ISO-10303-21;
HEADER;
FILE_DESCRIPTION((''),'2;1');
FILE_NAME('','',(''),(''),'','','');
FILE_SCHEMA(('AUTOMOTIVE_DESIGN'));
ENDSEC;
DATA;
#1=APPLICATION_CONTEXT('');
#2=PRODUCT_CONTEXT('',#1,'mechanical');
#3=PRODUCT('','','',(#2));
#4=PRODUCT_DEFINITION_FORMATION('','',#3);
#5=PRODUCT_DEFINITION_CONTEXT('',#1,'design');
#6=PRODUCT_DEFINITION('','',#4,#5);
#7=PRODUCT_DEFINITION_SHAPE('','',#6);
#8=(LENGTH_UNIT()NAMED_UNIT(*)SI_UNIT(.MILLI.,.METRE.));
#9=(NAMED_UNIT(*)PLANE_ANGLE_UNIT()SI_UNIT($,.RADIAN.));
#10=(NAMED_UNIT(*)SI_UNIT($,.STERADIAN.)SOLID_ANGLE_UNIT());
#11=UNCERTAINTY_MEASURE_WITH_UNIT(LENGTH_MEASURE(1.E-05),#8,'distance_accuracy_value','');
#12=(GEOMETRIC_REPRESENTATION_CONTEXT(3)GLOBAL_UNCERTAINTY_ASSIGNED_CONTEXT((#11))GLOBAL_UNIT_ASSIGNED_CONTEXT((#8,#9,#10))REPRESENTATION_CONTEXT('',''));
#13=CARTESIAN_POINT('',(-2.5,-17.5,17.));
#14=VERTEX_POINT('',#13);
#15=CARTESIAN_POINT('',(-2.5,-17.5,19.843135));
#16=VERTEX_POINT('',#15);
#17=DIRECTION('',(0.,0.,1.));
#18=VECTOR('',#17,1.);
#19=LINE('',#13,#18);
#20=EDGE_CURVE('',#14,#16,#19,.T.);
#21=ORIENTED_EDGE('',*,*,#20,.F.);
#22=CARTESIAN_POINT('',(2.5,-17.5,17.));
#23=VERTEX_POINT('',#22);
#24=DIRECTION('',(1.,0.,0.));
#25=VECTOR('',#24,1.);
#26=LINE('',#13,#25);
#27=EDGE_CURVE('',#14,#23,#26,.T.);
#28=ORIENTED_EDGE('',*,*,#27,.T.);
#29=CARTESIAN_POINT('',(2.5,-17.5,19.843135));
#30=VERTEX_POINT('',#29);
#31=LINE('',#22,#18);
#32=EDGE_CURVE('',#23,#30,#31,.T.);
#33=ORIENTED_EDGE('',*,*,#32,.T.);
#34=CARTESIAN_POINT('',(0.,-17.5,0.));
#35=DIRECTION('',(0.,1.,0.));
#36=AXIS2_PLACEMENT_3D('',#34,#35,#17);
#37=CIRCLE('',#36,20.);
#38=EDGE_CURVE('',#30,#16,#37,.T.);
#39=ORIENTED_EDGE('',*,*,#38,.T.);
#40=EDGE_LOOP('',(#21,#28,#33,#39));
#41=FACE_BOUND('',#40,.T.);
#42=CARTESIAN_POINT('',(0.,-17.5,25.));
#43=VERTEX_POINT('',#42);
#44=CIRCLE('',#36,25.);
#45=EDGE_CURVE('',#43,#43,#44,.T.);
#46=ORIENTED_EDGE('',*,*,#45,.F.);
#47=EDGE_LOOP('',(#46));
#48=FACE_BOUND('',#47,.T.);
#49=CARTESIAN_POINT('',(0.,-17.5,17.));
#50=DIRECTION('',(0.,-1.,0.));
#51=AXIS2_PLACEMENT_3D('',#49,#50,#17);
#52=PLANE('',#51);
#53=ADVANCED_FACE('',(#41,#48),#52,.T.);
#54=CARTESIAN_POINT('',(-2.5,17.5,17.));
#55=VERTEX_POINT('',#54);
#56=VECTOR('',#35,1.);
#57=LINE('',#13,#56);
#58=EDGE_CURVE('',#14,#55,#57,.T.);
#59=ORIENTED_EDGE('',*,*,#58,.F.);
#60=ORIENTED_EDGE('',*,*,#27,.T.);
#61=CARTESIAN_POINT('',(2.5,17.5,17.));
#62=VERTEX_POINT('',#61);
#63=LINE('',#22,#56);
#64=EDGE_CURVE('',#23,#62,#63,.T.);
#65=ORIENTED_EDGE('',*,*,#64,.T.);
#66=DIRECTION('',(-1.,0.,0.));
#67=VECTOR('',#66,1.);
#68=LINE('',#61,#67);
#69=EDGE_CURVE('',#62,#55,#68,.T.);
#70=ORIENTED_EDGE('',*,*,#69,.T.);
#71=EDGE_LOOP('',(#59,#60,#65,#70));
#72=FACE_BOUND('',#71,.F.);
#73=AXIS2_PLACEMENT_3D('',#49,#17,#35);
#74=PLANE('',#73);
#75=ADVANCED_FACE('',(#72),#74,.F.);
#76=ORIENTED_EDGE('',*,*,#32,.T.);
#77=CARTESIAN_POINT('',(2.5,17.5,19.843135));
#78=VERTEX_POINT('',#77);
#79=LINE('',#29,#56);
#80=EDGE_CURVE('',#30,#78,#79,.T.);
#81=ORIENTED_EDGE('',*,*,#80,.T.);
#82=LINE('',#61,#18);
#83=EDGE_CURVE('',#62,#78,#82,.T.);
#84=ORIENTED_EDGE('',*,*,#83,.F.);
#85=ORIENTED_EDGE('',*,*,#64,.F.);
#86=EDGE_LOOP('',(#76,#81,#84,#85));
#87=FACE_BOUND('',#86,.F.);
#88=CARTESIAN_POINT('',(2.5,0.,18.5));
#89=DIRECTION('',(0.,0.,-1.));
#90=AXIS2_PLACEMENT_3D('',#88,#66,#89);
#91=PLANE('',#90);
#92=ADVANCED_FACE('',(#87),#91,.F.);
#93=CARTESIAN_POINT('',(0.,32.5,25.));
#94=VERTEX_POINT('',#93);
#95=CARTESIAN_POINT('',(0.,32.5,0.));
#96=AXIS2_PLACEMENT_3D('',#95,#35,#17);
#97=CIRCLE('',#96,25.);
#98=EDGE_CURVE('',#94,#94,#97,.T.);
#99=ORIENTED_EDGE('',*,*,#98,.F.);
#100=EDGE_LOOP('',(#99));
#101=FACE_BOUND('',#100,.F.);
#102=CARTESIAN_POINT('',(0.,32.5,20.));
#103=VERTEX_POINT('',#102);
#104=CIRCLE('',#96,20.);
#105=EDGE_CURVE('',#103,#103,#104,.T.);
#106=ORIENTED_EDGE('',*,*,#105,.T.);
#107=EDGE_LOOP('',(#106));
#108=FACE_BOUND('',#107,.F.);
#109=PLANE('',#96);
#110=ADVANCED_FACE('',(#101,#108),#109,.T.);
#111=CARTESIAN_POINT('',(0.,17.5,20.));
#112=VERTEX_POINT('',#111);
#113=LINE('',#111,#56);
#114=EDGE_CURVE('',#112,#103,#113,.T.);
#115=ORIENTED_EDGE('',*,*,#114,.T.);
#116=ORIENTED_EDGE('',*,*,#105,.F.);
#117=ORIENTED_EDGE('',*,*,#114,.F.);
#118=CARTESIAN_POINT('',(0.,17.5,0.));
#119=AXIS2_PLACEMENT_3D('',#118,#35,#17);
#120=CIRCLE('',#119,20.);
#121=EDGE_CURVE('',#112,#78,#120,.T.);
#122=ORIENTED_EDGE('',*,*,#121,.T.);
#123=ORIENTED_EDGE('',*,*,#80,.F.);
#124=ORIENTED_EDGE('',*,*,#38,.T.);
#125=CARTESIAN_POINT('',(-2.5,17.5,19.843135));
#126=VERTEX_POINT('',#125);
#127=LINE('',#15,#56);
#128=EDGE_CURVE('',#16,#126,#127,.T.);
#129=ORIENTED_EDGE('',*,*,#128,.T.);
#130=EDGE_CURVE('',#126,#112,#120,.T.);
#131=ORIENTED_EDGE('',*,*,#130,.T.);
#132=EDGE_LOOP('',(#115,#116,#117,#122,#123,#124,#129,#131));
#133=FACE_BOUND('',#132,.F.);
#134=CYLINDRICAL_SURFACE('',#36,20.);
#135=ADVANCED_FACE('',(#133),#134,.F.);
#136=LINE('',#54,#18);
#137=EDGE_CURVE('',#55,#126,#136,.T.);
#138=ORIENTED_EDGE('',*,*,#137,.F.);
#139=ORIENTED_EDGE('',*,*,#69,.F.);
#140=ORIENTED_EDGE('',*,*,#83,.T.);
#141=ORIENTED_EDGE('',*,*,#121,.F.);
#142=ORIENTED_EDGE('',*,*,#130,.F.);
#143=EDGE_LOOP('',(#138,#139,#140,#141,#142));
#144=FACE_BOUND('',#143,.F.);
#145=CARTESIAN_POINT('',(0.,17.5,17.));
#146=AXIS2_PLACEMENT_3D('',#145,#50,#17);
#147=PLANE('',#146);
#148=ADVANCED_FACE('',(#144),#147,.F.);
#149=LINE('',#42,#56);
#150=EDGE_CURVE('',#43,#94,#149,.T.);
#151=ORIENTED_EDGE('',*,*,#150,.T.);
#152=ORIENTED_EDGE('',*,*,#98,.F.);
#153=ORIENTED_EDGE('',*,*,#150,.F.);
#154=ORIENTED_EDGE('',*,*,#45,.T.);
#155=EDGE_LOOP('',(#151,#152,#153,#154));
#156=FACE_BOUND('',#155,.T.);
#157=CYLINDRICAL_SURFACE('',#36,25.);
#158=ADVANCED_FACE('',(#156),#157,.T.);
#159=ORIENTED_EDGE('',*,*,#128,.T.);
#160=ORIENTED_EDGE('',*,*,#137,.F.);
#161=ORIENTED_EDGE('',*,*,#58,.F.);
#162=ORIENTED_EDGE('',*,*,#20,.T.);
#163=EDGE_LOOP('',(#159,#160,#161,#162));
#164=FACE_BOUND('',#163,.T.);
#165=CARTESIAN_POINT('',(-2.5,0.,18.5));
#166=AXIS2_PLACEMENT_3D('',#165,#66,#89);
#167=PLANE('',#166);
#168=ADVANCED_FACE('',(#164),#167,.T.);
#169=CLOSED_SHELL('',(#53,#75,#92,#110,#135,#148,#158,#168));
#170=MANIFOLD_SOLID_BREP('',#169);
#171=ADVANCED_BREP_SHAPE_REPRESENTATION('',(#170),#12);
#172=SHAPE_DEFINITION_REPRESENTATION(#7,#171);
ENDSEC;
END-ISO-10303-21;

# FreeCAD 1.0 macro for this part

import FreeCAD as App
import Part
import Sketcher

V = App.Vector
Q = App.Units.Quantity

doc = App.newDocument("Part")
body = doc.addObject("PartDesign::Body", "Body")

# Sketch on YZ plane
sketch1 = body.newObject("Sketcher::SketchObject", "Sketch")
sketch1.AttachmentSupport = (doc.getObject("YZ_Plane"), [""])
sketch1.MapMode = "FlatFace"
sketch1.addGeometry([
    Part.LineSegment(V(17.5, 20, 0), V(-17.5, 20, 0)),
    Part.LineSegment(V(-17.5, 20, 0), V(-17.5, 17, 0)),
    Part.LineSegment(V(-17.5, 17, 0), V(17.5, 17, 0)),
    Part.LineSegment(V(17.5, 17, 0), V(17.5, 20, 0)),
], False)
sketch1.addConstraint([
    Sketcher.Constraint("Coincident", 0, 2, 1, 1),
    Sketcher.Constraint("Coincident", 1, 2, 2, 1),
    Sketcher.Constraint("Coincident", 2, 2, 3, 1),
    Sketcher.Constraint("Coincident", 3, 2, 0, 1),
    Sketcher.Constraint("Horizontal", 0),
    Sketcher.Constraint("Vertical", 1),
    Sketcher.Constraint("Horizontal", 2),
    Sketcher.Constraint("Vertical", 3),
    Sketcher.Constraint("DistanceX", 0, 2, 0, 1, Q("35 mm")),
    Sketcher.Constraint("DistanceY", 1, 2, 1, 1, Q("3 mm")),
    Sketcher.Constraint("DistanceY", -1, 1, 0, 2, Q("20 mm")),
    Sketcher.Constraint("DistanceX", 0, 2, -1, 1, Q("17.5 mm")),
])
pad1 = body.newObject("PartDesign::Pad", "Pad")
pad1.Profile = sketch1
pad1.Length = 5
pad1.Midplane = True

# Sketch on YZ plane
sketch2 = body.newObject("Sketcher::SketchObject", "Sketch001")
sketch2.AttachmentSupport = (doc.getObject("YZ_Plane"), [""])
sketch2.MapMode = "FlatFace"
sketch2.addGeometry([
    Part.LineSegment(V(-18, 25, 0), V(-18, 20, 0)),
    Part.LineSegment(V(-18, 20, 0), V(32, 20, 0)),
    Part.LineSegment(V(32, 20, 0), V(32, 25, 0)),
    Part.LineSegment(V(32, 25, 0), V(-18, 25, 0)),
], False)
sketch2.addConstraint([
    Sketcher.Constraint("Coincident", 0, 2, 1, 1),
    Sketcher.Constraint("Coincident", 1, 2, 2, 1),
    Sketcher.Constraint("Coincident", 2, 2, 3, 1),
    Sketcher.Constraint("Coincident", 3, 2, 0, 1),
    Sketcher.Constraint("Vertical", 0),
    Sketcher.Constraint("Horizontal", 1),
    Sketcher.Constraint("Vertical", 2),
    Sketcher.Constraint("Horizontal", 3),
    Sketcher.Constraint("DistanceX", 1, 1, 1, 2, Q("50 mm")),
    Sketcher.Constraint("DistanceY", 0, 2, 0, 1, Q("5 mm")),
    Sketcher.Constraint("DistanceY", -1, 1, 0, 2, Q("20 mm")),
    Sketcher.Constraint("DistanceX", 0, 2, -1, 1, Q("17.5 mm")),
])
revolution = body.newObject("PartDesign::Revolution", "Revolution")
revolution.Profile = sketch2
revolution.ReferenceAxis = (sketch2, ["H_Axis"])
revolution.Angle = 360

doc.recompute()
